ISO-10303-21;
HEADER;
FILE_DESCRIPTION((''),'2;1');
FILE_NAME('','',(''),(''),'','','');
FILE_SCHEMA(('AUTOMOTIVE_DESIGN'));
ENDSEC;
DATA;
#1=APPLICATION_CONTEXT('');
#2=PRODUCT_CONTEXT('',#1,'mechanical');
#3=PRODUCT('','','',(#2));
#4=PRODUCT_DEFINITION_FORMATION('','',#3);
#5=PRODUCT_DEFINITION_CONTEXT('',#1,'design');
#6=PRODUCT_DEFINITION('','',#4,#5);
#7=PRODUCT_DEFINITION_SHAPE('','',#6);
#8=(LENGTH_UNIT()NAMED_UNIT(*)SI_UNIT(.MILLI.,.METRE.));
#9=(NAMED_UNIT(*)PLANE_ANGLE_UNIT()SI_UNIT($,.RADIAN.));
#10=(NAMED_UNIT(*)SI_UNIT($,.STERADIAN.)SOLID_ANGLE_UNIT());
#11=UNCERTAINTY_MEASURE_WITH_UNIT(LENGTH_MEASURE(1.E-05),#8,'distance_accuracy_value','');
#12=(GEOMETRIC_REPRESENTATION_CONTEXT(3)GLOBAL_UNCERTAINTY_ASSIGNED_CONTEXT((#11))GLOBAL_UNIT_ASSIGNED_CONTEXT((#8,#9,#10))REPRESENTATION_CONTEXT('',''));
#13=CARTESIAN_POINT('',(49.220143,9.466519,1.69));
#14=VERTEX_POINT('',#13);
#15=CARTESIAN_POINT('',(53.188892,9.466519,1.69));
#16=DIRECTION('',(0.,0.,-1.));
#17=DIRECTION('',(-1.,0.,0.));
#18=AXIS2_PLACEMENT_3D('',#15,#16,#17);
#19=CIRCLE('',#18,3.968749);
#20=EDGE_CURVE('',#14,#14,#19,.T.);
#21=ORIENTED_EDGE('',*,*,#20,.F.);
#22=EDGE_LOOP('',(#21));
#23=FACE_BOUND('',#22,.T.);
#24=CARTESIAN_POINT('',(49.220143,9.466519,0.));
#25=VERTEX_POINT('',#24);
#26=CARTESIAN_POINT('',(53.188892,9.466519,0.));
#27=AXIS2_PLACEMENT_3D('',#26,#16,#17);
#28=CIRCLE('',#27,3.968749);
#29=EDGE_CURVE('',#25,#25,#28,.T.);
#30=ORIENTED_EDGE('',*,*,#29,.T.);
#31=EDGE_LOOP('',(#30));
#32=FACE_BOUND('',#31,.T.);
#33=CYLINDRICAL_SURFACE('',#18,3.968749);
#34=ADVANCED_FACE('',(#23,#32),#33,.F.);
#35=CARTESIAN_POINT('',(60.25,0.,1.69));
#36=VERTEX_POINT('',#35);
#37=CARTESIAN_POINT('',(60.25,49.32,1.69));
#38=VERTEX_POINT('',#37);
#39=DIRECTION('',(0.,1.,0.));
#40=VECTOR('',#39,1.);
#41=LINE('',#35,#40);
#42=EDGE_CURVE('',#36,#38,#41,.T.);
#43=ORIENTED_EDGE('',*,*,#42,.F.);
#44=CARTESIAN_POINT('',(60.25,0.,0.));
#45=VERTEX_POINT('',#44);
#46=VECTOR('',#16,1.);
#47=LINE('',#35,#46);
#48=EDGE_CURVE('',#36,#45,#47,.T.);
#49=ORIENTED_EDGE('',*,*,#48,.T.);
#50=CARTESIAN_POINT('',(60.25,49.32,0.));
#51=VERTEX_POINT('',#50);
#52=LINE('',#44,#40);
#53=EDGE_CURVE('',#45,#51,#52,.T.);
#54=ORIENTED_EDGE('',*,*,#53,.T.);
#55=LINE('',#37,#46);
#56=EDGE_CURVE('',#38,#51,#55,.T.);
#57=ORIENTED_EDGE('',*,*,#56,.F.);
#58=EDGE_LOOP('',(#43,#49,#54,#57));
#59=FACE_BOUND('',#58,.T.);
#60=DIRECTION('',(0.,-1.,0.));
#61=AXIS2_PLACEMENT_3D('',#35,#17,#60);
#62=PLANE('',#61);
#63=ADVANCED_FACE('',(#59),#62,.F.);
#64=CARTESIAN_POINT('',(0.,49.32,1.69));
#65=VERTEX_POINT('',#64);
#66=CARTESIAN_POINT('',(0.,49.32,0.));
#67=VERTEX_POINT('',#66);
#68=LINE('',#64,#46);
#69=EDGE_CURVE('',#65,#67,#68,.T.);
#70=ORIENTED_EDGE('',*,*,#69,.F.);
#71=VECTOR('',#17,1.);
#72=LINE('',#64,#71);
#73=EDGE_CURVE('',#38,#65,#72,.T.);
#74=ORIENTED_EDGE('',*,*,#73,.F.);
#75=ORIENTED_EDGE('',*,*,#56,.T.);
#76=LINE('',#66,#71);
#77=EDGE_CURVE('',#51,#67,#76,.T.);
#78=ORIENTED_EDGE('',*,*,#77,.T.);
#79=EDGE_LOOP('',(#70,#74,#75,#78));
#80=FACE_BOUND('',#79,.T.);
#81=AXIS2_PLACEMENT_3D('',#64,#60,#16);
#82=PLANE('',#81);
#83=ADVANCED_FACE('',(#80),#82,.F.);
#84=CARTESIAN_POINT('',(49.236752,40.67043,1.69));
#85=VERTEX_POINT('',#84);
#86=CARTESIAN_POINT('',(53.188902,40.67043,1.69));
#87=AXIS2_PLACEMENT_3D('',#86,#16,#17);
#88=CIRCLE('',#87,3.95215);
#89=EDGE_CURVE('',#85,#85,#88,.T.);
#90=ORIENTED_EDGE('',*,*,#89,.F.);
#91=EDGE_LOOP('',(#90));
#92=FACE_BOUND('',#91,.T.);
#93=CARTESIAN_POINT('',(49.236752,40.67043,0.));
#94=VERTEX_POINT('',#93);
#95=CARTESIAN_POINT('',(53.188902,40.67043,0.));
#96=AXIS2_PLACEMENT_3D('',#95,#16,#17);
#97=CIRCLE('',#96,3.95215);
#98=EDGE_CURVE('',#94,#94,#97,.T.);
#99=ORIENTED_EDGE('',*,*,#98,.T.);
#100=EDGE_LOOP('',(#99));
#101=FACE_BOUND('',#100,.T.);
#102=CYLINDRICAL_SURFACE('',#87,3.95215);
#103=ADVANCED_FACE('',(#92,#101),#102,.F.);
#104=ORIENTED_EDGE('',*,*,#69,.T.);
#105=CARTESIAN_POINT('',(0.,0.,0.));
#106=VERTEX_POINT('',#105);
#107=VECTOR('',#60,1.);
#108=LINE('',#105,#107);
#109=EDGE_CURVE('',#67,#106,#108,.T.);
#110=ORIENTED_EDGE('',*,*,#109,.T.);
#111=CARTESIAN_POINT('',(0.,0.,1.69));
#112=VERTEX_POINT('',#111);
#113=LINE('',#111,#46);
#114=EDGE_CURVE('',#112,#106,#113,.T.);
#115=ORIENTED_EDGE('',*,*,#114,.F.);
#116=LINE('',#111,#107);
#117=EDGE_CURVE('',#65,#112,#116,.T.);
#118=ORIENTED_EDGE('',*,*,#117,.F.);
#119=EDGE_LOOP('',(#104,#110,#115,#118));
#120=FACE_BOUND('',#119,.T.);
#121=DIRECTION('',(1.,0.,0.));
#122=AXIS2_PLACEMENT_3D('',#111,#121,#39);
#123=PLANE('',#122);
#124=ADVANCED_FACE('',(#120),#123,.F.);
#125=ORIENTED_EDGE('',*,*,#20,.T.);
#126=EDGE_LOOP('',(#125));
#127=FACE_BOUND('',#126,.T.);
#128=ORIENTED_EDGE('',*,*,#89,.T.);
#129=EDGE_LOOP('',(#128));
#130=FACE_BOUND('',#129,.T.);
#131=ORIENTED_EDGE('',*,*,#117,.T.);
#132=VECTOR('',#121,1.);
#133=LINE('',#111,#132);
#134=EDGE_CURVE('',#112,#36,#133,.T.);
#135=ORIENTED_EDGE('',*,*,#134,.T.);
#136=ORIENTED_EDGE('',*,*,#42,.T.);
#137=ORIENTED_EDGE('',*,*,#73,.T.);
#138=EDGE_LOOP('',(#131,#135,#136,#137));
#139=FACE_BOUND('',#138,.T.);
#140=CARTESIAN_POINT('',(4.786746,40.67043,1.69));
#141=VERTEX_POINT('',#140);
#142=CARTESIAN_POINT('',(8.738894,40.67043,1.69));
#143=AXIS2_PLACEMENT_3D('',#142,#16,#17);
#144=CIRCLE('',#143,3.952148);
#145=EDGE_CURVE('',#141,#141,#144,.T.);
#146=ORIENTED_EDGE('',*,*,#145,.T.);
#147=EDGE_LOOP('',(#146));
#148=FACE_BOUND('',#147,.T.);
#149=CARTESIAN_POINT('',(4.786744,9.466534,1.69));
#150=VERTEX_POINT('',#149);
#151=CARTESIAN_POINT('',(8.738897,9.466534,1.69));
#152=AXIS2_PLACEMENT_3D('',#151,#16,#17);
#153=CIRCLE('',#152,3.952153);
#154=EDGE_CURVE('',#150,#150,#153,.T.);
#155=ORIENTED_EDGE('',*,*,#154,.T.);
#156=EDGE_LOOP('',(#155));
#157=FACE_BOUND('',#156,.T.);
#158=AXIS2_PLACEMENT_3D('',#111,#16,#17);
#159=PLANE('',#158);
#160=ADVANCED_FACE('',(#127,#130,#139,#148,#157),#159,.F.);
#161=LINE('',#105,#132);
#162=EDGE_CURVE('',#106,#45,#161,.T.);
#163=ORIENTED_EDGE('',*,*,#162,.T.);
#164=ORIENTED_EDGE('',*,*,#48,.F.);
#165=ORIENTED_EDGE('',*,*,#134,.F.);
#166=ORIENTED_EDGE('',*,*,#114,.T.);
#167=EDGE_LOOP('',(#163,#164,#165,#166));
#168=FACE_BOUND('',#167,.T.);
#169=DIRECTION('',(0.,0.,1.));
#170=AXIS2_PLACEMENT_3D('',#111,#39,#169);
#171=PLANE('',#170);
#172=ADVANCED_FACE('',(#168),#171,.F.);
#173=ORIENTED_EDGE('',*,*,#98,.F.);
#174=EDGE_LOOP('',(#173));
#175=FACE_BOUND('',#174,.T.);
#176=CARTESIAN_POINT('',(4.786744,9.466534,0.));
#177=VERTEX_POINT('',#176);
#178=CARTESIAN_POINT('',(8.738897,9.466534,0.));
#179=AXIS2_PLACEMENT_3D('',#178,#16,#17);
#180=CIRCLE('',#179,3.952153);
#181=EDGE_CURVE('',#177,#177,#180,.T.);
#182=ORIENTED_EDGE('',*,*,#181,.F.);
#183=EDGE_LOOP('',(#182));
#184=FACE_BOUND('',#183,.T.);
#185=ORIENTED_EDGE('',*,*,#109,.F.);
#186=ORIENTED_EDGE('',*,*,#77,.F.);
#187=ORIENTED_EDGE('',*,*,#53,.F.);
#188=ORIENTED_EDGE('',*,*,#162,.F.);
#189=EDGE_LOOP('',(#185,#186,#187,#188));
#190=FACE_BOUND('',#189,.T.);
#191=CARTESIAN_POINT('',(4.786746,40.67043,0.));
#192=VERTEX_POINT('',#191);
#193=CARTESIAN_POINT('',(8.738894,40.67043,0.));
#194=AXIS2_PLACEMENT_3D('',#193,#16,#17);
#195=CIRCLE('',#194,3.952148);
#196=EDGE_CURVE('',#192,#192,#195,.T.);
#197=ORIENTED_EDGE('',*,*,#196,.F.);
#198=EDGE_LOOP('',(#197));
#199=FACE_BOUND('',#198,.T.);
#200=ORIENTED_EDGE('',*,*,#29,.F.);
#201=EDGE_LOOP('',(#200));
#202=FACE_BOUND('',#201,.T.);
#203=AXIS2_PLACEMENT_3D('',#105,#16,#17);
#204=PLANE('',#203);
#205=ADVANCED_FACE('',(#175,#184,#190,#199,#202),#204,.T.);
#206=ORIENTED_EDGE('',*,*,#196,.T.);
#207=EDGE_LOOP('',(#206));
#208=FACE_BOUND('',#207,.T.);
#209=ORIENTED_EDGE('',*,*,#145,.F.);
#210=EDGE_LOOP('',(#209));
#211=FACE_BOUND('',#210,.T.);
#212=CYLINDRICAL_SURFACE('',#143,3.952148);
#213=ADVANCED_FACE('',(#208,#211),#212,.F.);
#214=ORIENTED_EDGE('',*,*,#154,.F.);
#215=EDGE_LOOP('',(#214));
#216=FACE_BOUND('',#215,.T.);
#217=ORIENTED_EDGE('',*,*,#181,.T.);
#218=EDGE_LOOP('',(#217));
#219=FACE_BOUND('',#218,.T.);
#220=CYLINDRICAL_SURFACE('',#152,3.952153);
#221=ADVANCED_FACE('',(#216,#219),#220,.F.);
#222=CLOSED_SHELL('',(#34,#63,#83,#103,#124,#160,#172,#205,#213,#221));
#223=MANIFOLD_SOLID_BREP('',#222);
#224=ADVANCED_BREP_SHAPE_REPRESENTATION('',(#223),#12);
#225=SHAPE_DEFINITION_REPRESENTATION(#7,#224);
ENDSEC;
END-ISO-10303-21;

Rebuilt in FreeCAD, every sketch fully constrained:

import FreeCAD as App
import Part
import Sketcher
from FreeCAD import Vector
Q = App.Units.Quantity


def add_polygon(sketch, points):
    """Adds a closed chain of lines whose ends are joined by coincident constraints."""
    first, n = sketch.GeometryCount, len(points)
    for a, b in zip(points, points[1:] + points[:1]):
        sketch.addGeometry(Part.LineSegment(App.Vector(*a, 0), App.Vector(*b, 0)), False)
    for i in range(n):
        sketch.addConstraint(Sketcher.Constraint("Coincident", first + i, 2, first + (i + 1) % n, 1))

doc = App.newDocument("Part")
body = doc.addObject("PartDesign::Body", "Body")

# Sketch on XY plane
sketch1 = body.newObject("Sketcher::SketchObject", "Sketch")
sketch1.AttachmentSupport = (doc.getObject("XY_Plane"), [""])
sketch1.MapMode = "FlatFace"
add_polygon(sketch1, [(0, 49), (0, 0), (60, 0), (60, 49)])  # lines 0-3
sketch1.addConstraint(Sketcher.Constraint("Vertical", 0))
sketch1.addConstraint(Sketcher.Constraint("Horizontal", 1))
sketch1.addConstraint(Sketcher.Constraint("Vertical", 2))
sketch1.addConstraint(Sketcher.Constraint("Horizontal", 3))
sketch1.addConstraint(Sketcher.Constraint("Coincident", 0, 2, -1, 1))
sketch1.addConstraint(Sketcher.Constraint("DistanceX", 1, 1, 1, 2, 60.25))
sketch1.addConstraint(Sketcher.Constraint("DistanceY", 0, 2, 0, 1, 49.32))
pad1 = body.newObject("PartDesign::Pad", "Pad")
pad1.Profile = sketch1
pad1.Length = 1.69

# Sketch on XY plane
sketch2 = body.newObject("Sketcher::SketchObject", "Sketch001")
sketch2.AttachmentSupport = (doc.getObject("XY_Plane"), [""])
sketch2.MapMode = "FlatFace"
sketch2.addGeometry(Part.Circle(Vector(8.7, 40.7, 0), Vector(0, 0, 1), 4), False)
sketch2.addGeometry(Part.Circle(Vector(53.2, 40.7, 0), Vector(0, 0, 1), 4), False)
sketch2.addGeometry(Part.Circle(Vector(53.2, 9.5, 0), Vector(0, 0, 1), 4), False)
sketch2.addGeometry(Part.Circle(Vector(8.7, 9.5, 0), Vector(0, 0, 1), 4), False)
sketch2.addConstraint(Sketcher.Constraint("Horizontal", 0, 3, 1, 3))
sketch2.addConstraint(Sketcher.Constraint("Diameter", 2, Q("0.3124999 in")))
sketch2.addConstraint(Sketcher.Constraint("Diameter", 1, 7.9043))
sketch2.addConstraint(Sketcher.Constraint("DistanceX", 0, 3, 2, 3, Q("1.7499999 in")))
sketch2.addConstraint(Sketcher.Constraint("DistanceX", 3, 3, 1, 3, Q("1.7500002 in")))
sketch2.addConstraint(Sketcher.Constraint("Diameter", 0, 7.904295))
sketch2.addConstraint(Sketcher.Constraint("Diameter", 3, 7.904306))
sketch2.addConstraint(Sketcher.Constraint("DistanceY", 3, 3, 0, 3, Q("1.2284999 in")))
sketch2.addConstraint(Sketcher.Constraint("DistanceX", -1, 1, 1, 3, 53.188902))
sketch2.addConstraint(Sketcher.Constraint("DistanceY", -1, 1, 0, 3, 40.67043))
sketch2.addConstraint(Sketcher.Constraint("DistanceX", -1, 1, 2, 3, 53.188892))
sketch2.addConstraint(Sketcher.Constraint("DistanceY", -1, 1, 2, 3, 9.466519))
pocket1 = body.newObject("PartDesign::Pocket", "Pocket")
pocket1.Profile = sketch2
pocket1.Type = "ThroughAll"
pocket1.Reversed = True

doc.recompute()
